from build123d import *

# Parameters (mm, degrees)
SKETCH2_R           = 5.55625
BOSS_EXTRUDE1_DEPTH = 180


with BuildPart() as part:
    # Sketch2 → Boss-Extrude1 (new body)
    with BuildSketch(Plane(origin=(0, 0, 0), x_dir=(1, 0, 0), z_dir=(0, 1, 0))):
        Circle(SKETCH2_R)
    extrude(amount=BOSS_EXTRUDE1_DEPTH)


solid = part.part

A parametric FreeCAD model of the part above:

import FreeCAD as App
import Part
import Sketcher

V = App.Vector
Q = App.Units.Quantity

doc = App.newDocument("Part")
body = doc.addObject("PartDesign::Body", "Body")

sketch1 = body.newObject("Sketcher::SketchObject", "Sketch")
sketch1.AttachmentSupport = (doc.getObject("XZ_Plane"), [""])
sketch1.MapMode = "FlatFace"
sketch1.addGeometry(Part.Circle(V(0, 0, 0), V(0, 0, 1), 6), False)
sketch1.addConstraint([
    Sketcher.Constraint("Coincident", 0, 3, -1, 1),
    Sketcher.Constraint("Diameter", 0, Q("11.1125 mm")),
])
pad1 = body.newObject("PartDesign::Pad", "Pad")
pad1.Profile = sketch1
pad1.Length = 180
pad1.Reversed = True

doc.recompute()
